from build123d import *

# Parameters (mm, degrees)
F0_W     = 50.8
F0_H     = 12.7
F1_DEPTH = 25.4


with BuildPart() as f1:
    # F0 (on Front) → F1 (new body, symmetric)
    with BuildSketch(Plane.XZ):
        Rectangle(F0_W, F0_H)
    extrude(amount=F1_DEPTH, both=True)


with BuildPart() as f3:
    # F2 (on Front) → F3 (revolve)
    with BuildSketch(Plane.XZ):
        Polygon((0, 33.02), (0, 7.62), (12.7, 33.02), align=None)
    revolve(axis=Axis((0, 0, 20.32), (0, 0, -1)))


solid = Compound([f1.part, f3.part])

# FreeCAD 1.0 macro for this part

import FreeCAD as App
import Part
import Sketcher
Q = App.Units.Quantity


def add_polygon(sketch, points):
    """Adds a closed chain of lines whose ends are joined by coincident constraints."""
    first, n = sketch.GeometryCount, len(points)
    for a, b in zip(points, points[1:] + points[:1]):
        sketch.addGeometry(Part.LineSegment(App.Vector(*a, 0), App.Vector(*b, 0)), False)
    for i in range(n):
        sketch.addConstraint(Sketcher.Constraint("Coincident", first + i, 2, first + (i + 1) % n, 1))

doc = App.newDocument("Part")
body = doc.addObject("PartDesign::Body", "Body")

# Sketch on XZ plane
sketch1 = doc.addObject("Sketcher::SketchObject", "Sketch")
body.addObject(sketch1)
sketch1.AttachmentSupport = (doc.XZ_Plane, [""])
sketch1.MapMode = "FlatFace"
add_polygon(sketch1, [(-25.4, 6.35), (-25.4, -6.35), (25.4, -6.35), (25.4, 6.35)])  # lines 0-3
sketch1.addConstraint([
    Sketcher.Constraint("Vertical", 0),
    Sketcher.Constraint("Horizontal", 1),
    Sketcher.Constraint("Vertical", 2),
    Sketcher.Constraint("Horizontal", 3),
    Sketcher.Constraint("Symmetric", 0, 2, 2, 2, -1, 1),
    Sketcher.Constraint("DistanceX", 1, 1, 1, 2, Q("2 in")),
    Sketcher.Constraint("DistanceY", 0, 2, 0, 1, Q("0.5 in")),
])
pad1 = doc.addObject("PartDesign::Pad", "Pad")
body.addObject(pad1)
pad1.Profile = sketch1
pad1.Length = Q("2 in")
pad1.Midplane = True
body2 = doc.addObject("PartDesign::Body", "Body001")

# Sketch on XZ plane
sketch2 = doc.addObject("Sketcher::SketchObject", "Sketch001")
body2.addObject(sketch2)
sketch2.AttachmentSupport = (doc.getObject("XZ_Plane001"), [""])
sketch2.MapMode = "FlatFace"
add_polygon(sketch2, [(0, 33.02), (0, 7.62), (12.7, 33.02)])  # lines 0-2
sketch2.addConstraint([
    Sketcher.Constraint("Vertical", 0),
    Sketcher.Constraint("Horizontal", 2),
    Sketcher.Constraint("PointOnObject", 0, 2, -2),
    Sketcher.Constraint("DistanceY", 0, 2, 0, 1, Q("1 in")),
    Sketcher.Constraint("DistanceX", 2, 2, 2, 1, Q("0.5 in")),
    Sketcher.Constraint("DistanceY", -1, 1, 0, 2, Q("0.3 in")),
])
revolution = doc.addObject("PartDesign::Revolution", "Revolution")
body2.addObject(revolution)
revolution.Profile = sketch2
revolution.ReferenceAxis = (sketch2, ["V_Axis"])
revolution.Angle = 360

doc.recompute()
